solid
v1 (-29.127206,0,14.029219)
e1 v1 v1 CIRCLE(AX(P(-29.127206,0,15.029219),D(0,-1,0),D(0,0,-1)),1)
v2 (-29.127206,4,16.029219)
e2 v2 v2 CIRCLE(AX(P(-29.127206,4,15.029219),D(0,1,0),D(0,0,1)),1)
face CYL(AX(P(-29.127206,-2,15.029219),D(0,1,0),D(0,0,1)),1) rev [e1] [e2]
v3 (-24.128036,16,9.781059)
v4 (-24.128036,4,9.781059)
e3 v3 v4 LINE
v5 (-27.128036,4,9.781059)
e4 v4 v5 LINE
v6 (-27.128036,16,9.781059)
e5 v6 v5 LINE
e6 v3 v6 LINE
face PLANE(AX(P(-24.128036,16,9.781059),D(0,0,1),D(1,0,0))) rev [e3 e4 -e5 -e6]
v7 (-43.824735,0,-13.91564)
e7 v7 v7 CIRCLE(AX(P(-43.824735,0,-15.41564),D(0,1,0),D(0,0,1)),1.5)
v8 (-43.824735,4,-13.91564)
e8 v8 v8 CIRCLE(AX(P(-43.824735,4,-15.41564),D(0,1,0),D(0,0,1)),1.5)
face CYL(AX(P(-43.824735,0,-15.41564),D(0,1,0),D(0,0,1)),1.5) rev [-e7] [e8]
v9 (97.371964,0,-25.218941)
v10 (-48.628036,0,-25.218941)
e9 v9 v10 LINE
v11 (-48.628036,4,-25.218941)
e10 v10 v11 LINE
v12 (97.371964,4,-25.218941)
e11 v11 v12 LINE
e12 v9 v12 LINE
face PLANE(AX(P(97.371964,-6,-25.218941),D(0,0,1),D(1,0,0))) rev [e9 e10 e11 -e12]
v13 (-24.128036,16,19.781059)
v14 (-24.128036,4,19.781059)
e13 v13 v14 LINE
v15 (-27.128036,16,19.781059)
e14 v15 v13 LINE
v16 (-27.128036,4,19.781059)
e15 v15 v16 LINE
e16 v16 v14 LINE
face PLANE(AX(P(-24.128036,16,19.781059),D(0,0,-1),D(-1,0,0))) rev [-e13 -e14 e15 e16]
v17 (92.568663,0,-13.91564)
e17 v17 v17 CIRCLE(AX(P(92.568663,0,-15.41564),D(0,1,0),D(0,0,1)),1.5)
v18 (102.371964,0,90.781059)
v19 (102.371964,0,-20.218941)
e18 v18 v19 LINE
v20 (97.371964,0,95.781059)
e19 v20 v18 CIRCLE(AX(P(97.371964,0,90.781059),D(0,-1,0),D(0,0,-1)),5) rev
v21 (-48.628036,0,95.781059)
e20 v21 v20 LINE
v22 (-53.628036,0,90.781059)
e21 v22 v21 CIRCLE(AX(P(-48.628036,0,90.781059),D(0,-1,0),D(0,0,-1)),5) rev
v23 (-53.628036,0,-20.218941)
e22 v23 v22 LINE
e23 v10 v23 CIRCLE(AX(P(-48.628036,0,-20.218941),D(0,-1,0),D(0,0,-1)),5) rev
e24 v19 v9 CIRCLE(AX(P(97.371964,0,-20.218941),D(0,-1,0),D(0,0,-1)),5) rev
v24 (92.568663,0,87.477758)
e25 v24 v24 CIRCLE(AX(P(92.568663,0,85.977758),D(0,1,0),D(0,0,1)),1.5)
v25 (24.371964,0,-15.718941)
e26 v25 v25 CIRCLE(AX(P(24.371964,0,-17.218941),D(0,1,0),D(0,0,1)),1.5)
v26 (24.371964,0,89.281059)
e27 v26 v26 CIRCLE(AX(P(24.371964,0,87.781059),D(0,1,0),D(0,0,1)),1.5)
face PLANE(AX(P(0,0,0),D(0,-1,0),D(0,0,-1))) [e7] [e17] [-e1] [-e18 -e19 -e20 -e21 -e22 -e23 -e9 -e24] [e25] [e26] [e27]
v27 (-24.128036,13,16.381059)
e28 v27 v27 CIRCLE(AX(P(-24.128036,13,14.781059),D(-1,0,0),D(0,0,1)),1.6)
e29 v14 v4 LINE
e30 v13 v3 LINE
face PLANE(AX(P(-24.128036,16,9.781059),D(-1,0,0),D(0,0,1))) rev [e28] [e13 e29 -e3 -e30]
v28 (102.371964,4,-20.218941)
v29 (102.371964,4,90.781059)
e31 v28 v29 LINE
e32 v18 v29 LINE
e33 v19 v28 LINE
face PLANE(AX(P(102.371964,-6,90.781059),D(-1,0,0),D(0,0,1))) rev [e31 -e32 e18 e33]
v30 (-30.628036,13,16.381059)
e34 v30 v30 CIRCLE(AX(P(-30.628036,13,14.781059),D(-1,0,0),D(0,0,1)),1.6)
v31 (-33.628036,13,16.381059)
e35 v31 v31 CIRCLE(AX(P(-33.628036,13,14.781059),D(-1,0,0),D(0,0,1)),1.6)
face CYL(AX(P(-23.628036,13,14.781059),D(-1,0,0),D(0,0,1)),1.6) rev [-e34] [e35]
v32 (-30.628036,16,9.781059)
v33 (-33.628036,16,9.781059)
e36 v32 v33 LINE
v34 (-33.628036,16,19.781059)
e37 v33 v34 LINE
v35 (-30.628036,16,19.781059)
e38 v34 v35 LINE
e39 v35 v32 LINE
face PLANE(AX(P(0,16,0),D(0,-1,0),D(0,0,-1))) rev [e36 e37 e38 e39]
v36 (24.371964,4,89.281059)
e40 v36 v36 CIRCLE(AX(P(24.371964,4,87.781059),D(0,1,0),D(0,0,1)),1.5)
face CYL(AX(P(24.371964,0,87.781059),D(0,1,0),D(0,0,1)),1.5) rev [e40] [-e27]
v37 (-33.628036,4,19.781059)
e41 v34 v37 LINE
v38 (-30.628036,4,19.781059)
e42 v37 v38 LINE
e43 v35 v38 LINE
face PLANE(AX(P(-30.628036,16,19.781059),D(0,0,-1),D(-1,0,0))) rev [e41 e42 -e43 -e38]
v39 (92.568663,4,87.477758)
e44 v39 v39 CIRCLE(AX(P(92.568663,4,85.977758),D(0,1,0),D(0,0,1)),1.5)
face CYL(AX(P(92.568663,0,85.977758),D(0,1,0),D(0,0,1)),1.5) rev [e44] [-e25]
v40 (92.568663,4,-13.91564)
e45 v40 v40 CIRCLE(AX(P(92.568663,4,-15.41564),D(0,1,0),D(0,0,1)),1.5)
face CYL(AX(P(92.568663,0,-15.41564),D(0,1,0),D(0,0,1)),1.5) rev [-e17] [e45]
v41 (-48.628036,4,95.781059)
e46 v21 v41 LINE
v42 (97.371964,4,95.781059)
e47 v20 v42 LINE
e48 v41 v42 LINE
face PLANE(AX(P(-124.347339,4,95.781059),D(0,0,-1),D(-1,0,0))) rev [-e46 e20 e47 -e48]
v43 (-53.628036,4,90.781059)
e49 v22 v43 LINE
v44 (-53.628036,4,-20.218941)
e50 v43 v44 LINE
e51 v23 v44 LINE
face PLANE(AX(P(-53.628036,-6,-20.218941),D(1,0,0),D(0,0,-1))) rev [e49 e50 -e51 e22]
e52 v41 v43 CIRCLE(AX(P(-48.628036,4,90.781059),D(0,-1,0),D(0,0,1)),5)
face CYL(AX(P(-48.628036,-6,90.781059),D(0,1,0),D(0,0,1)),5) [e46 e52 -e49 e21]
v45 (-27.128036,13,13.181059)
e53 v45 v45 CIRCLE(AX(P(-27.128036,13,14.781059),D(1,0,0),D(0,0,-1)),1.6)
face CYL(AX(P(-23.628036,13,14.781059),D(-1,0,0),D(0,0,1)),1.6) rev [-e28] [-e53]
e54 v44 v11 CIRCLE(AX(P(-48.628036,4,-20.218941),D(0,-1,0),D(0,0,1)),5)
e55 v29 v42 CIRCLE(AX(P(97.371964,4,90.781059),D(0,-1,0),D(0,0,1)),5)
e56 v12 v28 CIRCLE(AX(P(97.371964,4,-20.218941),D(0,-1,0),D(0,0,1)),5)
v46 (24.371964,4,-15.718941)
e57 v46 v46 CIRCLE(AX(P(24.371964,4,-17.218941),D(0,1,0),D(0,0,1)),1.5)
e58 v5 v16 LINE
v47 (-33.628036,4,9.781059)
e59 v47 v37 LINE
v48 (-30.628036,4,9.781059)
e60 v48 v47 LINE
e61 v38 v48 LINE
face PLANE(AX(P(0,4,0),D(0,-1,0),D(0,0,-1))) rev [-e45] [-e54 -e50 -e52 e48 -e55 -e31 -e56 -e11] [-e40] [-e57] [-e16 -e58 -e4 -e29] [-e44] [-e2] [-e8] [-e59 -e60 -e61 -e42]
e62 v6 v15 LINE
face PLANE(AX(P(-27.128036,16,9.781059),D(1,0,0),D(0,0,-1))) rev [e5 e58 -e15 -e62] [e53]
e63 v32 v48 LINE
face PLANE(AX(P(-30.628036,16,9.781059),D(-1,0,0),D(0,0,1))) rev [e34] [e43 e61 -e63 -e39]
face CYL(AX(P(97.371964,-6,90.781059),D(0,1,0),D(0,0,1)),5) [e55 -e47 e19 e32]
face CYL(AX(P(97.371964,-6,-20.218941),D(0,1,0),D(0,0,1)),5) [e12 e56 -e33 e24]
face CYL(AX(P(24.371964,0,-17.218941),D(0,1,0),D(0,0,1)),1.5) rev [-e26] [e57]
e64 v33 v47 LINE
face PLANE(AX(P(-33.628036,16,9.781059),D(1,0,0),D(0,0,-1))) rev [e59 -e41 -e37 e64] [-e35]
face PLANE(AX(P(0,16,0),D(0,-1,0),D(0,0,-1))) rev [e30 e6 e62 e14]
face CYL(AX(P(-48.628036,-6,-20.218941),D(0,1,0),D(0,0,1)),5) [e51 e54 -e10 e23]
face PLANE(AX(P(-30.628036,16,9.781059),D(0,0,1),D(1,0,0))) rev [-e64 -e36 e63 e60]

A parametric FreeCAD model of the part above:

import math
import FreeCAD as App
import Part
import Sketcher
Q = App.Units.Quantity

doc = App.newDocument("Part")
params = doc.addObject("Spreadsheet::Sheet", "Params")
for row, (alias, value) in enumerate([
    ("pad1_length", "4 mm"),
    ("sketch2_radius", "5 mm"),
    ("sketch2_width", "146 mm"),
    ("sketch2_height", "111 mm"),
    ("pocket1_length", "10 mm"),
    ("sketch3_diameter", "3 mm"),
    ("pocket2_length", "4 mm"),
    ("sketch4_width", "3 mm"),
    ("sketch4_height", "10 mm"),
    ("pad2_length", "12 mm"),
    ("sketch5_diameter", "3.2 mm"),
    ("pocket3_length", "10 mm"),
    ("sketch6_diameter", "2 mm"),
    ("pocket4_length", "6 mm"),
], start=1):
    params.set(f"A{row}", alias)
    params.set(f"B{row}", "=" + value)
    params.setAlias(f"B{row}", alias)

body = doc.addObject("PartDesign::Body", "Body")

# Sketch on XZ plane
sketch1 = body.newObject("Sketcher::SketchObject", "Sketch")
sketch1.AttachmentSupport = (doc.getObject("XZ_Plane"), [""])
sketch1.MapMode = "FlatFace"
sketch1.addGeometry([
    Part.LineSegment(App.Vector(-124.347339, -95.781059, 0), App.Vector(-124.347339, 95.781059, 0)),
    Part.LineSegment(App.Vector(-124.347339, 95.781059, 0), App.Vector(124.347339, 95.781059, 0)),
    Part.LineSegment(App.Vector(124.347339, 95.781059, 0), App.Vector(124.347339, -95.781059, 0)),
    Part.LineSegment(App.Vector(124.347339, -95.781059, 0), App.Vector(-124.347339, -95.781059, 0)),
], False)
sketch1.addConstraint([
    Sketcher.Constraint("Coincident", 0, 2, 1, 1),
    Sketcher.Constraint("Coincident", 1, 2, 2, 1),
    Sketcher.Constraint("Coincident", 2, 2, 3, 1),
    Sketcher.Constraint("Coincident", 3, 2, 0, 1),
    Sketcher.Constraint("Vertical", 0),
    Sketcher.Constraint("Horizontal", 1),
    Sketcher.Constraint("Vertical", 2),
    Sketcher.Constraint("Horizontal", 3),
    Sketcher.Constraint("Symmetric", 0, 2, 2, 2, -1, 1),
    Sketcher.Constraint("DistanceX", 1, 1, 1, 2, Q("248.694679 mm")),
    Sketcher.Constraint("DistanceY", 0, 1, 0, 2, Q("191.562117 mm")),
])
pad1 = body.newObject("PartDesign::Pad", "Pad")
pad1.Profile = sketch1
pad1.setExpression("Length", "Params.pad1_length")
pad1.Reversed = True

# Sketch on XZ plane
sketch2 = body.newObject("Sketcher::SketchObject", "Sketch001")
sketch2.AttachmentSupport = (doc.getObject("XZ_Plane"), [""])
sketch2.MapMode = "FlatFace"
sketch2.AttachmentOffset = App.Placement(App.Vector(0, 0, -4), App.Rotation())
sketch2.addGeometry([
    Part.LineSegment(App.Vector(-53.628036, 90.781059, 0), App.Vector(-53.628036, -20.218941, 0)),  # 0
    Part.ArcOfCircle(Part.Circle(App.Vector(-48.628036, -20.218941, 0), App.Vector(0, 0, 1), 5), math.radians(-180), math.radians(-90)),  # 1
    Part.LineSegment(App.Vector(-48.628036, -25.218941, 0), App.Vector(97.371964, -25.218941, 0)),  # 2
    Part.ArcOfCircle(Part.Circle(App.Vector(97.371964, -20.218941, 0), App.Vector(0, 0, 1), 5), math.radians(-90), math.radians(0)),  # 3
    Part.LineSegment(App.Vector(102.371964, -20.218941, 0), App.Vector(102.371964, 90.781059, 0)),  # 4
    Part.ArcOfCircle(Part.Circle(App.Vector(97.371964, 90.781059, 0), App.Vector(0, 0, 1), 5), math.radians(0), math.radians(90)),  # 5
    Part.LineSegment(App.Vector(97.371964, 95.781059, 0), App.Vector(124.347339, 95.781059, 0)),  # 6
    Part.LineSegment(App.Vector(124.347339, 95.781059, 0), App.Vector(124.347339, -95.781059, 0)),  # 7
    Part.LineSegment(App.Vector(124.347339, -95.781059, 0), App.Vector(-124.347339, -95.781059, 0)),  # 8
    Part.LineSegment(App.Vector(-124.347339, -95.781059, 0), App.Vector(-124.347339, 95.781059, 0)),  # 9
    Part.LineSegment(App.Vector(-124.347339, 95.781059, 0), App.Vector(-48.628036, 95.781059, 0)),  # 10
    Part.ArcOfCircle(Part.Circle(App.Vector(-48.628036, 90.781059, 0), App.Vector(0, 0, 1), 5), math.radians(90), math.radians(180)),  # 11
], False)
sketch2.addConstraint([
    Sketcher.Constraint("Tangent", 0, 2, 1, 1),
    Sketcher.Constraint("Tangent", 1, 2, 2, 1),
    Sketcher.Constraint("Tangent", 2, 2, 3, 1),
    Sketcher.Constraint("Tangent", 3, 2, 4, 1),
    Sketcher.Constraint("Tangent", 4, 2, 5, 1),
    Sketcher.Constraint("Tangent", 5, 2, 6, 1),
    Sketcher.Constraint("Coincident", 6, 2, 7, 1),
    Sketcher.Constraint("Coincident", 7, 2, 8, 1),
    Sketcher.Constraint("Coincident", 8, 2, 9, 1),
    Sketcher.Constraint("Coincident", 9, 2, 10, 1),
    Sketcher.Constraint("Tangent", 10, 2, 11, 1),
    Sketcher.Constraint("Tangent", 11, 2, 0, 1),
    Sketcher.Constraint("Vertical", 0),
    Sketcher.Constraint("Horizontal", 2),
    Sketcher.Constraint("Vertical", 4),
    Sketcher.Constraint("Horizontal", 6),
    Sketcher.Constraint("Vertical", 7),
    Sketcher.Constraint("Horizontal", 8),
    Sketcher.Constraint("Vertical", 9),
    Sketcher.Constraint("Horizontal", 10),
    Sketcher.Constraint("Equal", 1, 3),
    Sketcher.Constraint("Equal", 3, 5),
    Sketcher.Constraint("Equal", 5, 11),
    Sketcher.Constraint("Symmetric", 6, 2, 8, 2, -1, 1),
    Sketcher.Constraint("Horizontal", 5, 3, 11, 3),
    Sketcher.Constraint("Radius", 1, Q("5 mm")),
    Sketcher.Constraint("DistanceX", 2, 1, 2, 2, Q("146 mm")),
    Sketcher.Constraint("DistanceY", 0, 2, 0, 1, Q("111 mm")),
    Sketcher.Constraint("DistanceX", 8, 2, 8, 1, Q("248.694679 mm")),
    Sketcher.Constraint("DistanceX", 6, 1, 6, 2, Q("26.975375 mm")),
    Sketcher.Constraint("DistanceY", 7, 2, 7, 1, Q("191.562117 mm")),
])
sketch2.setExpression("Constraints[25]", "Params.sketch2_radius")
sketch2.setExpression("Constraints[26]", "Params.sketch2_width")
sketch2.setExpression("Constraints[27]", "Params.sketch2_height")
pocket1 = body.newObject("PartDesign::Pocket", "Pocket")
pocket1.Profile = sketch2
pocket1.setExpression("Length", "Params.pocket1_length")
pocket1.Reversed = True

# Sketch on XZ plane
sketch3 = body.newObject("Sketcher::SketchObject", "Sketch002")
sketch3.AttachmentSupport = (doc.getObject("XZ_Plane"), [""])
sketch3.MapMode = "FlatFace"
sketch3.AttachmentOffset = App.Placement(App.Vector(0, 0, -4), App.Rotation())
sketch3.addGeometry([
    Part.Circle(App.Vector(-43.824735, -15.41564, 0), App.Vector(0, 0, 1), 1.5),  # 0
    Part.Circle(App.Vector(24.371964, -17.218941, 0), App.Vector(0, 0, 1), 1.5),  # 1
    Part.Circle(App.Vector(92.568663, -15.41564, 0), App.Vector(0, 0, 1), 1.5),  # 2
    Part.Circle(App.Vector(24.371964, 87.781059, 0), App.Vector(0, 0, 1), 1.5),  # 3
    Part.Circle(App.Vector(92.568663, 85.977758, 0), App.Vector(0, 0, 1), 1.5),  # 4
], False)
sketch3.addConstraint([
    Sketcher.Constraint("Equal", 0, 1),
    Sketcher.Constraint("Equal", 1, 2),
    Sketcher.Constraint("Equal", 2, 3),
    Sketcher.Constraint("Equal", 3, 4),
    Sketcher.Constraint("Horizontal", 0, 3, 2, 3),
    Sketcher.Constraint("Vertical", 1, 3, 3, 3),
    Sketcher.Constraint("Vertical", 2, 3, 4, 3),
    Sketcher.Constraint("Diameter", 0, Q("3 mm")),
    Sketcher.Constraint("DistanceY", 1, 3, 3, 3, Q("105 mm")),
    Sketcher.Constraint("DistanceX", 0, 3, 1, 3, Q("68.196699 mm")),
    Sketcher.Constraint("DistanceY", 1, 3, 0, 3, Q("1.803301 mm")),
    Sketcher.Constraint("DistanceX", 1, 3, 2, 3, Q("68.196699 mm")),
    Sketcher.Constraint("DistanceY", 4, 3, 3, 3, Q("1.803301 mm")),
    Sketcher.Constraint("DistanceY", 0, 3, -1, 1, Q("15.41564 mm")),
    Sketcher.Constraint("DistanceX", 0, 3, -1, 1, Q("43.824735 mm")),
])
sketch3.setExpression("Constraints[7]", "Params.sketch3_diameter")
pocket2 = body.newObject("PartDesign::Pocket", "Pocket001")
pocket2.Profile = sketch3
pocket2.setExpression("Length", "Params.pocket2_length")
pocket2.Reversed = True

# Sketch on XZ plane
sketch4 = body.newObject("Sketcher::SketchObject", "Sketch003")
sketch4.AttachmentSupport = (doc.getObject("XZ_Plane"), [""])
sketch4.MapMode = "FlatFace"
sketch4.AttachmentOffset = App.Placement(App.Vector(0, 0, -4), App.Rotation())
sketch4.addGeometry([
    Part.LineSegment(App.Vector(-33.628036, 9.781059, 0), App.Vector(-33.628036, 19.781059, 0)),  # 0
    Part.LineSegment(App.Vector(-33.628036, 19.781059, 0), App.Vector(-30.628036, 19.781059, 0)),  # 1
    Part.LineSegment(App.Vector(-30.628036, 19.781059, 0), App.Vector(-30.628036, 9.781059, 0)),  # 2
    Part.LineSegment(App.Vector(-30.628036, 9.781059, 0), App.Vector(-33.628036, 9.781059, 0)),  # 3
    Part.LineSegment(App.Vector(-27.128036, 9.781059, 0), App.Vector(-27.128036, 19.781059, 0)),  # 4
    Part.LineSegment(App.Vector(-27.128036, 19.781059, 0), App.Vector(-24.128036, 19.781059, 0)),  # 5
    Part.LineSegment(App.Vector(-24.128036, 19.781059, 0), App.Vector(-24.128036, 9.781059, 0)),  # 6
    Part.LineSegment(App.Vector(-24.128036, 9.781059, 0), App.Vector(-27.128036, 9.781059, 0)),  # 7
], False)
sketch4.addConstraint([
    Sketcher.Constraint("Coincident", 0, 2, 1, 1),
    Sketcher.Constraint("Coincident", 1, 2, 2, 1),
    Sketcher.Constraint("Coincident", 2, 2, 3, 1),
    Sketcher.Constraint("Coincident", 3, 2, 0, 1),
    Sketcher.Constraint("Coincident", 4, 2, 5, 1),
    Sketcher.Constraint("Coincident", 5, 2, 6, 1),
    Sketcher.Constraint("Coincident", 6, 2, 7, 1),
    Sketcher.Constraint("Coincident", 7, 2, 4, 1),
    Sketcher.Constraint("Vertical", 0),
    Sketcher.Constraint("Horizontal", 1),
    Sketcher.Constraint("Vertical", 2),
    Sketcher.Constraint("Horizontal", 3),
    Sketcher.Constraint("Vertical", 4),
    Sketcher.Constraint("Horizontal", 5),
    Sketcher.Constraint("Vertical", 6),
    Sketcher.Constraint("Horizontal", 7),
    Sketcher.Constraint("Horizontal", 1, 2, 4, 2),
    Sketcher.Constraint("Horizontal", 3, 2, 6, 2),
    Sketcher.Constraint("Equal", 3, 5),
    Sketcher.Constraint("DistanceX", 1, 1, 1, 2, Q("3 mm")),
    Sketcher.Constraint("DistanceY", 0, 1, 0, 2, Q("10 mm")),
    Sketcher.Constraint("DistanceX", 1, 2, 4, 2, Q("3.5 mm")),
    Sketcher.Constraint("DistanceY", -1, 1, 0, 2, Q("19.781059 mm")),
    Sketcher.Constraint("DistanceX", 0, 2, -1, 1, Q("33.628036 mm")),
])
sketch4.setExpression("Constraints[19]", "Params.sketch4_width")
sketch4.setExpression("Constraints[20]", "Params.sketch4_height")
pad2 = body.newObject("PartDesign::Pad", "Pad001")
pad2.Profile = sketch4
pad2.setExpression("Length", "Params.pad2_length")
pad2.Reversed = True

# Sketch on YZ plane
sketch5 = body.newObject("Sketcher::SketchObject", "Sketch004")
sketch5.AttachmentSupport = (doc.getObject("YZ_Plane"), [""])
sketch5.MapMode = "FlatFace"
sketch5.AttachmentOffset = App.Placement(App.Vector(0, 0, -33.628036), App.Rotation())
sketch5.addGeometry(Part.Circle(App.Vector(13, 14.781059, 0), App.Vector(0, 0, 1), 1.6), False)
sketch5.addConstraint([
    Sketcher.Constraint("Diameter", 0, Q("3.2 mm")),
    Sketcher.Constraint("DistanceX", -1, 1, 0, 3, Q("13 mm")),
    Sketcher.Constraint("DistanceY", -1, 1, 0, 3, Q("14.781059 mm")),
])
sketch5.setExpression("Constraints[0]", "Params.sketch5_diameter")
pocket3 = body.newObject("PartDesign::Pocket", "Pocket002")
pocket3.Profile = sketch5
pocket3.setExpression("Length", "Params.pocket3_length")
pocket3.Reversed = True

# Sketch on XZ plane
sketch6 = body.newObject("Sketcher::SketchObject", "Sketch005")
sketch6.AttachmentSupport = (doc.getObject("XZ_Plane"), [""])
sketch6.MapMode = "FlatFace"
sketch6.AttachmentOffset = App.Placement(App.Vector(0, 0, -4), App.Rotation())
sketch6.addGeometry(Part.Circle(App.Vector(-29.127206, 15.029219, 0), App.Vector(0, 0, 1), 1), False)
sketch6.addConstraint([
    Sketcher.Constraint("Diameter", 0, Q("2 mm")),
    Sketcher.Constraint("DistanceY", -1, 1, 0, 3, Q("15.029219 mm")),
    Sketcher.Constraint("DistanceX", 0, 3, -1, 1, Q("29.127206 mm")),
])
sketch6.setExpression("Constraints[0]", "Params.sketch6_diameter")
pocket4 = body.newObject("PartDesign::Pocket", "Pocket003")
pocket4.Profile = sketch6
pocket4.setExpression("Length", "Params.pocket4_length")
pocket4.Reversed = True

doc.recompute()
